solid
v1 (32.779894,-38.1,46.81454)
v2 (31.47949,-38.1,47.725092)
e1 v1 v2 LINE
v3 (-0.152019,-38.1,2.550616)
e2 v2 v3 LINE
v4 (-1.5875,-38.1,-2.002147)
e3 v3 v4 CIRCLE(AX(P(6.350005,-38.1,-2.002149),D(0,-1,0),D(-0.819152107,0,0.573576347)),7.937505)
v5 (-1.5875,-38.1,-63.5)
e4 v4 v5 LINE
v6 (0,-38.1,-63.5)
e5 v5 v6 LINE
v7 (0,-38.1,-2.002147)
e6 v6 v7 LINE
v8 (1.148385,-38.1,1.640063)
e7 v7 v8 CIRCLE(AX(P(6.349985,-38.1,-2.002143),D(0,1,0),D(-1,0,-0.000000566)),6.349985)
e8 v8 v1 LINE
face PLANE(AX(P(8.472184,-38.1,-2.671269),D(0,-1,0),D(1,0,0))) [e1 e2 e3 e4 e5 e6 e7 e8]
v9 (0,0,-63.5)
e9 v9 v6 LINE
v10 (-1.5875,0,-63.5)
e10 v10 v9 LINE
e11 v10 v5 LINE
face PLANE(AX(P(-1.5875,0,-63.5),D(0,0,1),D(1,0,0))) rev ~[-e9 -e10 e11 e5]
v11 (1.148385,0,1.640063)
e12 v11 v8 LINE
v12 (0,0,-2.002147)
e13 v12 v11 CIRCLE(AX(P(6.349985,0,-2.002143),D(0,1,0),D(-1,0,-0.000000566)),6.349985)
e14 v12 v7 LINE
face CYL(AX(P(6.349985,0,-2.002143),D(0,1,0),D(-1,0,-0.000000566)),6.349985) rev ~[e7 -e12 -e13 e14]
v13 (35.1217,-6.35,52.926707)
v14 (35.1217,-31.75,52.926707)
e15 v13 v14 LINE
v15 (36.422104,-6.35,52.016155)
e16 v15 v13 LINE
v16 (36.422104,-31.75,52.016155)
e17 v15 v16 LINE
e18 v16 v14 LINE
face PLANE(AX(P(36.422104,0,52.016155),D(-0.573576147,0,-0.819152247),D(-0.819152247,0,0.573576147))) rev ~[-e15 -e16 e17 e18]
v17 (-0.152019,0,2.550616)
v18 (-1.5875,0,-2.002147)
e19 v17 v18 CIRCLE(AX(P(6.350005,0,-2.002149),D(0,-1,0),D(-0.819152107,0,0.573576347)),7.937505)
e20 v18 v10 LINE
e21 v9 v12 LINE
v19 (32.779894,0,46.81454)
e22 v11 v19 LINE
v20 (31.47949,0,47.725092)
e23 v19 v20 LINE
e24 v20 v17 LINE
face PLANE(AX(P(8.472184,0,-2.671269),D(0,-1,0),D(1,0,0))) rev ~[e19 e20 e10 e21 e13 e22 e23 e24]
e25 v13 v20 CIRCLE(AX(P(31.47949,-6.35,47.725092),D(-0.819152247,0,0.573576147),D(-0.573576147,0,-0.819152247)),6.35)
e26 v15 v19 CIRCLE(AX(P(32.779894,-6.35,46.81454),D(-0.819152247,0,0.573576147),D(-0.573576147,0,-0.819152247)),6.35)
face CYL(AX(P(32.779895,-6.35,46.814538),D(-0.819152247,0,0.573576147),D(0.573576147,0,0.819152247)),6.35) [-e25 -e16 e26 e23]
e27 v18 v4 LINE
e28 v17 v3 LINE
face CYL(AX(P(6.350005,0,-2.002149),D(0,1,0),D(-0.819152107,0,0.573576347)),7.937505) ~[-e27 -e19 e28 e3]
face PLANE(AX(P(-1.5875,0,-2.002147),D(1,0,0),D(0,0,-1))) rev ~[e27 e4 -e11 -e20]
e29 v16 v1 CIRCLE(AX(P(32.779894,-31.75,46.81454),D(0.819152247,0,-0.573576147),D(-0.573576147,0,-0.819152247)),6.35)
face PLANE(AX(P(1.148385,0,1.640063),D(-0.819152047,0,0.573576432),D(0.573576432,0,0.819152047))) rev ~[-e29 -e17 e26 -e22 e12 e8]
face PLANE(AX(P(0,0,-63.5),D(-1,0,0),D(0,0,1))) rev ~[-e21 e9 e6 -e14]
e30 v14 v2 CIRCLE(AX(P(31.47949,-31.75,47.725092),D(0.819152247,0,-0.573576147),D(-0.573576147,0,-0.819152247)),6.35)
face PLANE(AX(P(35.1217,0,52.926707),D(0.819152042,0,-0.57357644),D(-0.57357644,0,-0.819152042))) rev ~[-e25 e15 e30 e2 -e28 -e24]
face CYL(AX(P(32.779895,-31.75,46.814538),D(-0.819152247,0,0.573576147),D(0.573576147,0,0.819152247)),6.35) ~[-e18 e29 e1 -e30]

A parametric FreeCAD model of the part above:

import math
import FreeCAD as App
import Part
import Sketcher
from FreeCAD import Vector
Q = App.Units.Quantity


def edges_at(feature, points):
    """Names of the edges that pass closest to the given points."""
    edges = feature.Shape.Edges
    near = lambda p: min(range(len(edges)), key=lambda i: edges[i].distToShape(Part.Vertex(*p))[0])
    return sorted({f"Edge{near(p) + 1}" for p in points})

doc = App.newDocument("Part")
body = doc.addObject("PartDesign::Body", "Body")

# Sketch on XZ plane
sketch1 = doc.addObject("Sketcher::SketchObject", "Sketch")
body.addObject(sketch1)
sketch1.AttachmentSupport = (doc.XZ_Plane, [""])
sketch1.MapMode = "FlatFace"
sketch1.addGeometry([
    Part.LineSegment(Vector(0, -63.5, 0), Vector(0, -2.002147, 0)),  # 0
    Part.ArcOfCircle(Part.Circle(Vector(6.349985, -2.002143, 0), Vector(0, 0, 1), 6.349985), math.radians(144.99995), math.radians(180.000032)),  # 1
    Part.LineSegment(Vector(1.148385, 1.640063, 0), Vector(36.422104, 52.016155, 0)),  # 2
    Part.LineSegment(Vector(36.422104, 52.016155, 0), Vector(35.1217, 52.926707, 0)),  # 3
    Part.LineSegment(Vector(35.1217, 52.926707, 0), Vector(-0.152019, 2.550616, 0)),  # 4
    Part.ArcOfCircle(Part.Circle(Vector(6.350005, -2.002149, 0), Vector(0, 0, 1), 7.937505), math.radians(145.000006), math.radians(179.999986)),  # 5
    Part.LineSegment(Vector(-1.5875, -2.002147, 0), Vector(-1.5875, -63.5, 0)),  # 6
    Part.LineSegment(Vector(-1.5875, -63.5, 0), Vector(0, -63.5, 0)),  # 7
], False)
sketch1.addConstraint([
    Sketcher.Constraint("Coincident", 0, 2, 1, 2),
    Sketcher.Constraint("Coincident", 1, 1, 2, 1),
    Sketcher.Constraint("Coincident", 2, 2, 3, 1),
    Sketcher.Constraint("Coincident", 3, 2, 4, 1),
    Sketcher.Constraint("Coincident", 4, 2, 5, 1),
    Sketcher.Constraint("Coincident", 5, 2, 6, 1),
    Sketcher.Constraint("Coincident", 6, 2, 7, 1),
    Sketcher.Constraint("Coincident", 7, 2, 0, 1),
    Sketcher.Constraint("Vertical", 0),
    Sketcher.Constraint("Vertical", 6),
    Sketcher.Constraint("Horizontal", 7),
    Sketcher.Constraint("PointOnObject", 0, 2, -2),
    Sketcher.Constraint("DistanceY", 6, 2, -1, 1, Q("2.5 in")),
    Sketcher.Constraint("Radius", 5, Q("0.3125002 in")),
    Sketcher.Constraint("DistanceX", 7, 1, 7, 2, Q("0.0625 in")),
    Sketcher.Constraint("Distance", 3, Q("0.0625 in")),
    Sketcher.Constraint("Radius", 1, 6.349985),
    Sketcher.Constraint("DistanceX", -1, 1, 3, 2, 35.1217),
    Sketcher.Constraint("DistanceX", 1, 1, 1, 3, 5.2016),
    Sketcher.Constraint("DistanceX", 5, 3, 2, 2, 30.072099),
    Sketcher.Constraint("DistanceY", 1, 3, 2, 2, 54.018298),
    Sketcher.Constraint("DistanceY", 0, 2, 2, 2, 54.018302),
    Sketcher.Constraint("Distance", 4, 61.497852),
    Sketcher.Constraint("DistanceY", 0, 1, 0, 2, 61.497853),
    Sketcher.Constraint("DistanceY", 6, 2, 6, 1, 61.497853),
    Sketcher.Constraint("DistanceY", 5, 3, -1, 1, 2.002149),
])
pad1 = doc.addObject("PartDesign::Pad", "Pad")
body.addObject(pad1)
pad1.Profile = sketch1
pad1.Length = Q("1.5 in")
doc.recompute()

fillet = doc.addObject("PartDesign::Fillet", "Fillet")
body.addObject(fillet)
fillet.Base = (pad1, edges_at(pad1, [(35.772, -38.1, 52.471), (35.772, 0, 52.471)]))
fillet.Radius = Q("0.25 in")

doc.recompute()
